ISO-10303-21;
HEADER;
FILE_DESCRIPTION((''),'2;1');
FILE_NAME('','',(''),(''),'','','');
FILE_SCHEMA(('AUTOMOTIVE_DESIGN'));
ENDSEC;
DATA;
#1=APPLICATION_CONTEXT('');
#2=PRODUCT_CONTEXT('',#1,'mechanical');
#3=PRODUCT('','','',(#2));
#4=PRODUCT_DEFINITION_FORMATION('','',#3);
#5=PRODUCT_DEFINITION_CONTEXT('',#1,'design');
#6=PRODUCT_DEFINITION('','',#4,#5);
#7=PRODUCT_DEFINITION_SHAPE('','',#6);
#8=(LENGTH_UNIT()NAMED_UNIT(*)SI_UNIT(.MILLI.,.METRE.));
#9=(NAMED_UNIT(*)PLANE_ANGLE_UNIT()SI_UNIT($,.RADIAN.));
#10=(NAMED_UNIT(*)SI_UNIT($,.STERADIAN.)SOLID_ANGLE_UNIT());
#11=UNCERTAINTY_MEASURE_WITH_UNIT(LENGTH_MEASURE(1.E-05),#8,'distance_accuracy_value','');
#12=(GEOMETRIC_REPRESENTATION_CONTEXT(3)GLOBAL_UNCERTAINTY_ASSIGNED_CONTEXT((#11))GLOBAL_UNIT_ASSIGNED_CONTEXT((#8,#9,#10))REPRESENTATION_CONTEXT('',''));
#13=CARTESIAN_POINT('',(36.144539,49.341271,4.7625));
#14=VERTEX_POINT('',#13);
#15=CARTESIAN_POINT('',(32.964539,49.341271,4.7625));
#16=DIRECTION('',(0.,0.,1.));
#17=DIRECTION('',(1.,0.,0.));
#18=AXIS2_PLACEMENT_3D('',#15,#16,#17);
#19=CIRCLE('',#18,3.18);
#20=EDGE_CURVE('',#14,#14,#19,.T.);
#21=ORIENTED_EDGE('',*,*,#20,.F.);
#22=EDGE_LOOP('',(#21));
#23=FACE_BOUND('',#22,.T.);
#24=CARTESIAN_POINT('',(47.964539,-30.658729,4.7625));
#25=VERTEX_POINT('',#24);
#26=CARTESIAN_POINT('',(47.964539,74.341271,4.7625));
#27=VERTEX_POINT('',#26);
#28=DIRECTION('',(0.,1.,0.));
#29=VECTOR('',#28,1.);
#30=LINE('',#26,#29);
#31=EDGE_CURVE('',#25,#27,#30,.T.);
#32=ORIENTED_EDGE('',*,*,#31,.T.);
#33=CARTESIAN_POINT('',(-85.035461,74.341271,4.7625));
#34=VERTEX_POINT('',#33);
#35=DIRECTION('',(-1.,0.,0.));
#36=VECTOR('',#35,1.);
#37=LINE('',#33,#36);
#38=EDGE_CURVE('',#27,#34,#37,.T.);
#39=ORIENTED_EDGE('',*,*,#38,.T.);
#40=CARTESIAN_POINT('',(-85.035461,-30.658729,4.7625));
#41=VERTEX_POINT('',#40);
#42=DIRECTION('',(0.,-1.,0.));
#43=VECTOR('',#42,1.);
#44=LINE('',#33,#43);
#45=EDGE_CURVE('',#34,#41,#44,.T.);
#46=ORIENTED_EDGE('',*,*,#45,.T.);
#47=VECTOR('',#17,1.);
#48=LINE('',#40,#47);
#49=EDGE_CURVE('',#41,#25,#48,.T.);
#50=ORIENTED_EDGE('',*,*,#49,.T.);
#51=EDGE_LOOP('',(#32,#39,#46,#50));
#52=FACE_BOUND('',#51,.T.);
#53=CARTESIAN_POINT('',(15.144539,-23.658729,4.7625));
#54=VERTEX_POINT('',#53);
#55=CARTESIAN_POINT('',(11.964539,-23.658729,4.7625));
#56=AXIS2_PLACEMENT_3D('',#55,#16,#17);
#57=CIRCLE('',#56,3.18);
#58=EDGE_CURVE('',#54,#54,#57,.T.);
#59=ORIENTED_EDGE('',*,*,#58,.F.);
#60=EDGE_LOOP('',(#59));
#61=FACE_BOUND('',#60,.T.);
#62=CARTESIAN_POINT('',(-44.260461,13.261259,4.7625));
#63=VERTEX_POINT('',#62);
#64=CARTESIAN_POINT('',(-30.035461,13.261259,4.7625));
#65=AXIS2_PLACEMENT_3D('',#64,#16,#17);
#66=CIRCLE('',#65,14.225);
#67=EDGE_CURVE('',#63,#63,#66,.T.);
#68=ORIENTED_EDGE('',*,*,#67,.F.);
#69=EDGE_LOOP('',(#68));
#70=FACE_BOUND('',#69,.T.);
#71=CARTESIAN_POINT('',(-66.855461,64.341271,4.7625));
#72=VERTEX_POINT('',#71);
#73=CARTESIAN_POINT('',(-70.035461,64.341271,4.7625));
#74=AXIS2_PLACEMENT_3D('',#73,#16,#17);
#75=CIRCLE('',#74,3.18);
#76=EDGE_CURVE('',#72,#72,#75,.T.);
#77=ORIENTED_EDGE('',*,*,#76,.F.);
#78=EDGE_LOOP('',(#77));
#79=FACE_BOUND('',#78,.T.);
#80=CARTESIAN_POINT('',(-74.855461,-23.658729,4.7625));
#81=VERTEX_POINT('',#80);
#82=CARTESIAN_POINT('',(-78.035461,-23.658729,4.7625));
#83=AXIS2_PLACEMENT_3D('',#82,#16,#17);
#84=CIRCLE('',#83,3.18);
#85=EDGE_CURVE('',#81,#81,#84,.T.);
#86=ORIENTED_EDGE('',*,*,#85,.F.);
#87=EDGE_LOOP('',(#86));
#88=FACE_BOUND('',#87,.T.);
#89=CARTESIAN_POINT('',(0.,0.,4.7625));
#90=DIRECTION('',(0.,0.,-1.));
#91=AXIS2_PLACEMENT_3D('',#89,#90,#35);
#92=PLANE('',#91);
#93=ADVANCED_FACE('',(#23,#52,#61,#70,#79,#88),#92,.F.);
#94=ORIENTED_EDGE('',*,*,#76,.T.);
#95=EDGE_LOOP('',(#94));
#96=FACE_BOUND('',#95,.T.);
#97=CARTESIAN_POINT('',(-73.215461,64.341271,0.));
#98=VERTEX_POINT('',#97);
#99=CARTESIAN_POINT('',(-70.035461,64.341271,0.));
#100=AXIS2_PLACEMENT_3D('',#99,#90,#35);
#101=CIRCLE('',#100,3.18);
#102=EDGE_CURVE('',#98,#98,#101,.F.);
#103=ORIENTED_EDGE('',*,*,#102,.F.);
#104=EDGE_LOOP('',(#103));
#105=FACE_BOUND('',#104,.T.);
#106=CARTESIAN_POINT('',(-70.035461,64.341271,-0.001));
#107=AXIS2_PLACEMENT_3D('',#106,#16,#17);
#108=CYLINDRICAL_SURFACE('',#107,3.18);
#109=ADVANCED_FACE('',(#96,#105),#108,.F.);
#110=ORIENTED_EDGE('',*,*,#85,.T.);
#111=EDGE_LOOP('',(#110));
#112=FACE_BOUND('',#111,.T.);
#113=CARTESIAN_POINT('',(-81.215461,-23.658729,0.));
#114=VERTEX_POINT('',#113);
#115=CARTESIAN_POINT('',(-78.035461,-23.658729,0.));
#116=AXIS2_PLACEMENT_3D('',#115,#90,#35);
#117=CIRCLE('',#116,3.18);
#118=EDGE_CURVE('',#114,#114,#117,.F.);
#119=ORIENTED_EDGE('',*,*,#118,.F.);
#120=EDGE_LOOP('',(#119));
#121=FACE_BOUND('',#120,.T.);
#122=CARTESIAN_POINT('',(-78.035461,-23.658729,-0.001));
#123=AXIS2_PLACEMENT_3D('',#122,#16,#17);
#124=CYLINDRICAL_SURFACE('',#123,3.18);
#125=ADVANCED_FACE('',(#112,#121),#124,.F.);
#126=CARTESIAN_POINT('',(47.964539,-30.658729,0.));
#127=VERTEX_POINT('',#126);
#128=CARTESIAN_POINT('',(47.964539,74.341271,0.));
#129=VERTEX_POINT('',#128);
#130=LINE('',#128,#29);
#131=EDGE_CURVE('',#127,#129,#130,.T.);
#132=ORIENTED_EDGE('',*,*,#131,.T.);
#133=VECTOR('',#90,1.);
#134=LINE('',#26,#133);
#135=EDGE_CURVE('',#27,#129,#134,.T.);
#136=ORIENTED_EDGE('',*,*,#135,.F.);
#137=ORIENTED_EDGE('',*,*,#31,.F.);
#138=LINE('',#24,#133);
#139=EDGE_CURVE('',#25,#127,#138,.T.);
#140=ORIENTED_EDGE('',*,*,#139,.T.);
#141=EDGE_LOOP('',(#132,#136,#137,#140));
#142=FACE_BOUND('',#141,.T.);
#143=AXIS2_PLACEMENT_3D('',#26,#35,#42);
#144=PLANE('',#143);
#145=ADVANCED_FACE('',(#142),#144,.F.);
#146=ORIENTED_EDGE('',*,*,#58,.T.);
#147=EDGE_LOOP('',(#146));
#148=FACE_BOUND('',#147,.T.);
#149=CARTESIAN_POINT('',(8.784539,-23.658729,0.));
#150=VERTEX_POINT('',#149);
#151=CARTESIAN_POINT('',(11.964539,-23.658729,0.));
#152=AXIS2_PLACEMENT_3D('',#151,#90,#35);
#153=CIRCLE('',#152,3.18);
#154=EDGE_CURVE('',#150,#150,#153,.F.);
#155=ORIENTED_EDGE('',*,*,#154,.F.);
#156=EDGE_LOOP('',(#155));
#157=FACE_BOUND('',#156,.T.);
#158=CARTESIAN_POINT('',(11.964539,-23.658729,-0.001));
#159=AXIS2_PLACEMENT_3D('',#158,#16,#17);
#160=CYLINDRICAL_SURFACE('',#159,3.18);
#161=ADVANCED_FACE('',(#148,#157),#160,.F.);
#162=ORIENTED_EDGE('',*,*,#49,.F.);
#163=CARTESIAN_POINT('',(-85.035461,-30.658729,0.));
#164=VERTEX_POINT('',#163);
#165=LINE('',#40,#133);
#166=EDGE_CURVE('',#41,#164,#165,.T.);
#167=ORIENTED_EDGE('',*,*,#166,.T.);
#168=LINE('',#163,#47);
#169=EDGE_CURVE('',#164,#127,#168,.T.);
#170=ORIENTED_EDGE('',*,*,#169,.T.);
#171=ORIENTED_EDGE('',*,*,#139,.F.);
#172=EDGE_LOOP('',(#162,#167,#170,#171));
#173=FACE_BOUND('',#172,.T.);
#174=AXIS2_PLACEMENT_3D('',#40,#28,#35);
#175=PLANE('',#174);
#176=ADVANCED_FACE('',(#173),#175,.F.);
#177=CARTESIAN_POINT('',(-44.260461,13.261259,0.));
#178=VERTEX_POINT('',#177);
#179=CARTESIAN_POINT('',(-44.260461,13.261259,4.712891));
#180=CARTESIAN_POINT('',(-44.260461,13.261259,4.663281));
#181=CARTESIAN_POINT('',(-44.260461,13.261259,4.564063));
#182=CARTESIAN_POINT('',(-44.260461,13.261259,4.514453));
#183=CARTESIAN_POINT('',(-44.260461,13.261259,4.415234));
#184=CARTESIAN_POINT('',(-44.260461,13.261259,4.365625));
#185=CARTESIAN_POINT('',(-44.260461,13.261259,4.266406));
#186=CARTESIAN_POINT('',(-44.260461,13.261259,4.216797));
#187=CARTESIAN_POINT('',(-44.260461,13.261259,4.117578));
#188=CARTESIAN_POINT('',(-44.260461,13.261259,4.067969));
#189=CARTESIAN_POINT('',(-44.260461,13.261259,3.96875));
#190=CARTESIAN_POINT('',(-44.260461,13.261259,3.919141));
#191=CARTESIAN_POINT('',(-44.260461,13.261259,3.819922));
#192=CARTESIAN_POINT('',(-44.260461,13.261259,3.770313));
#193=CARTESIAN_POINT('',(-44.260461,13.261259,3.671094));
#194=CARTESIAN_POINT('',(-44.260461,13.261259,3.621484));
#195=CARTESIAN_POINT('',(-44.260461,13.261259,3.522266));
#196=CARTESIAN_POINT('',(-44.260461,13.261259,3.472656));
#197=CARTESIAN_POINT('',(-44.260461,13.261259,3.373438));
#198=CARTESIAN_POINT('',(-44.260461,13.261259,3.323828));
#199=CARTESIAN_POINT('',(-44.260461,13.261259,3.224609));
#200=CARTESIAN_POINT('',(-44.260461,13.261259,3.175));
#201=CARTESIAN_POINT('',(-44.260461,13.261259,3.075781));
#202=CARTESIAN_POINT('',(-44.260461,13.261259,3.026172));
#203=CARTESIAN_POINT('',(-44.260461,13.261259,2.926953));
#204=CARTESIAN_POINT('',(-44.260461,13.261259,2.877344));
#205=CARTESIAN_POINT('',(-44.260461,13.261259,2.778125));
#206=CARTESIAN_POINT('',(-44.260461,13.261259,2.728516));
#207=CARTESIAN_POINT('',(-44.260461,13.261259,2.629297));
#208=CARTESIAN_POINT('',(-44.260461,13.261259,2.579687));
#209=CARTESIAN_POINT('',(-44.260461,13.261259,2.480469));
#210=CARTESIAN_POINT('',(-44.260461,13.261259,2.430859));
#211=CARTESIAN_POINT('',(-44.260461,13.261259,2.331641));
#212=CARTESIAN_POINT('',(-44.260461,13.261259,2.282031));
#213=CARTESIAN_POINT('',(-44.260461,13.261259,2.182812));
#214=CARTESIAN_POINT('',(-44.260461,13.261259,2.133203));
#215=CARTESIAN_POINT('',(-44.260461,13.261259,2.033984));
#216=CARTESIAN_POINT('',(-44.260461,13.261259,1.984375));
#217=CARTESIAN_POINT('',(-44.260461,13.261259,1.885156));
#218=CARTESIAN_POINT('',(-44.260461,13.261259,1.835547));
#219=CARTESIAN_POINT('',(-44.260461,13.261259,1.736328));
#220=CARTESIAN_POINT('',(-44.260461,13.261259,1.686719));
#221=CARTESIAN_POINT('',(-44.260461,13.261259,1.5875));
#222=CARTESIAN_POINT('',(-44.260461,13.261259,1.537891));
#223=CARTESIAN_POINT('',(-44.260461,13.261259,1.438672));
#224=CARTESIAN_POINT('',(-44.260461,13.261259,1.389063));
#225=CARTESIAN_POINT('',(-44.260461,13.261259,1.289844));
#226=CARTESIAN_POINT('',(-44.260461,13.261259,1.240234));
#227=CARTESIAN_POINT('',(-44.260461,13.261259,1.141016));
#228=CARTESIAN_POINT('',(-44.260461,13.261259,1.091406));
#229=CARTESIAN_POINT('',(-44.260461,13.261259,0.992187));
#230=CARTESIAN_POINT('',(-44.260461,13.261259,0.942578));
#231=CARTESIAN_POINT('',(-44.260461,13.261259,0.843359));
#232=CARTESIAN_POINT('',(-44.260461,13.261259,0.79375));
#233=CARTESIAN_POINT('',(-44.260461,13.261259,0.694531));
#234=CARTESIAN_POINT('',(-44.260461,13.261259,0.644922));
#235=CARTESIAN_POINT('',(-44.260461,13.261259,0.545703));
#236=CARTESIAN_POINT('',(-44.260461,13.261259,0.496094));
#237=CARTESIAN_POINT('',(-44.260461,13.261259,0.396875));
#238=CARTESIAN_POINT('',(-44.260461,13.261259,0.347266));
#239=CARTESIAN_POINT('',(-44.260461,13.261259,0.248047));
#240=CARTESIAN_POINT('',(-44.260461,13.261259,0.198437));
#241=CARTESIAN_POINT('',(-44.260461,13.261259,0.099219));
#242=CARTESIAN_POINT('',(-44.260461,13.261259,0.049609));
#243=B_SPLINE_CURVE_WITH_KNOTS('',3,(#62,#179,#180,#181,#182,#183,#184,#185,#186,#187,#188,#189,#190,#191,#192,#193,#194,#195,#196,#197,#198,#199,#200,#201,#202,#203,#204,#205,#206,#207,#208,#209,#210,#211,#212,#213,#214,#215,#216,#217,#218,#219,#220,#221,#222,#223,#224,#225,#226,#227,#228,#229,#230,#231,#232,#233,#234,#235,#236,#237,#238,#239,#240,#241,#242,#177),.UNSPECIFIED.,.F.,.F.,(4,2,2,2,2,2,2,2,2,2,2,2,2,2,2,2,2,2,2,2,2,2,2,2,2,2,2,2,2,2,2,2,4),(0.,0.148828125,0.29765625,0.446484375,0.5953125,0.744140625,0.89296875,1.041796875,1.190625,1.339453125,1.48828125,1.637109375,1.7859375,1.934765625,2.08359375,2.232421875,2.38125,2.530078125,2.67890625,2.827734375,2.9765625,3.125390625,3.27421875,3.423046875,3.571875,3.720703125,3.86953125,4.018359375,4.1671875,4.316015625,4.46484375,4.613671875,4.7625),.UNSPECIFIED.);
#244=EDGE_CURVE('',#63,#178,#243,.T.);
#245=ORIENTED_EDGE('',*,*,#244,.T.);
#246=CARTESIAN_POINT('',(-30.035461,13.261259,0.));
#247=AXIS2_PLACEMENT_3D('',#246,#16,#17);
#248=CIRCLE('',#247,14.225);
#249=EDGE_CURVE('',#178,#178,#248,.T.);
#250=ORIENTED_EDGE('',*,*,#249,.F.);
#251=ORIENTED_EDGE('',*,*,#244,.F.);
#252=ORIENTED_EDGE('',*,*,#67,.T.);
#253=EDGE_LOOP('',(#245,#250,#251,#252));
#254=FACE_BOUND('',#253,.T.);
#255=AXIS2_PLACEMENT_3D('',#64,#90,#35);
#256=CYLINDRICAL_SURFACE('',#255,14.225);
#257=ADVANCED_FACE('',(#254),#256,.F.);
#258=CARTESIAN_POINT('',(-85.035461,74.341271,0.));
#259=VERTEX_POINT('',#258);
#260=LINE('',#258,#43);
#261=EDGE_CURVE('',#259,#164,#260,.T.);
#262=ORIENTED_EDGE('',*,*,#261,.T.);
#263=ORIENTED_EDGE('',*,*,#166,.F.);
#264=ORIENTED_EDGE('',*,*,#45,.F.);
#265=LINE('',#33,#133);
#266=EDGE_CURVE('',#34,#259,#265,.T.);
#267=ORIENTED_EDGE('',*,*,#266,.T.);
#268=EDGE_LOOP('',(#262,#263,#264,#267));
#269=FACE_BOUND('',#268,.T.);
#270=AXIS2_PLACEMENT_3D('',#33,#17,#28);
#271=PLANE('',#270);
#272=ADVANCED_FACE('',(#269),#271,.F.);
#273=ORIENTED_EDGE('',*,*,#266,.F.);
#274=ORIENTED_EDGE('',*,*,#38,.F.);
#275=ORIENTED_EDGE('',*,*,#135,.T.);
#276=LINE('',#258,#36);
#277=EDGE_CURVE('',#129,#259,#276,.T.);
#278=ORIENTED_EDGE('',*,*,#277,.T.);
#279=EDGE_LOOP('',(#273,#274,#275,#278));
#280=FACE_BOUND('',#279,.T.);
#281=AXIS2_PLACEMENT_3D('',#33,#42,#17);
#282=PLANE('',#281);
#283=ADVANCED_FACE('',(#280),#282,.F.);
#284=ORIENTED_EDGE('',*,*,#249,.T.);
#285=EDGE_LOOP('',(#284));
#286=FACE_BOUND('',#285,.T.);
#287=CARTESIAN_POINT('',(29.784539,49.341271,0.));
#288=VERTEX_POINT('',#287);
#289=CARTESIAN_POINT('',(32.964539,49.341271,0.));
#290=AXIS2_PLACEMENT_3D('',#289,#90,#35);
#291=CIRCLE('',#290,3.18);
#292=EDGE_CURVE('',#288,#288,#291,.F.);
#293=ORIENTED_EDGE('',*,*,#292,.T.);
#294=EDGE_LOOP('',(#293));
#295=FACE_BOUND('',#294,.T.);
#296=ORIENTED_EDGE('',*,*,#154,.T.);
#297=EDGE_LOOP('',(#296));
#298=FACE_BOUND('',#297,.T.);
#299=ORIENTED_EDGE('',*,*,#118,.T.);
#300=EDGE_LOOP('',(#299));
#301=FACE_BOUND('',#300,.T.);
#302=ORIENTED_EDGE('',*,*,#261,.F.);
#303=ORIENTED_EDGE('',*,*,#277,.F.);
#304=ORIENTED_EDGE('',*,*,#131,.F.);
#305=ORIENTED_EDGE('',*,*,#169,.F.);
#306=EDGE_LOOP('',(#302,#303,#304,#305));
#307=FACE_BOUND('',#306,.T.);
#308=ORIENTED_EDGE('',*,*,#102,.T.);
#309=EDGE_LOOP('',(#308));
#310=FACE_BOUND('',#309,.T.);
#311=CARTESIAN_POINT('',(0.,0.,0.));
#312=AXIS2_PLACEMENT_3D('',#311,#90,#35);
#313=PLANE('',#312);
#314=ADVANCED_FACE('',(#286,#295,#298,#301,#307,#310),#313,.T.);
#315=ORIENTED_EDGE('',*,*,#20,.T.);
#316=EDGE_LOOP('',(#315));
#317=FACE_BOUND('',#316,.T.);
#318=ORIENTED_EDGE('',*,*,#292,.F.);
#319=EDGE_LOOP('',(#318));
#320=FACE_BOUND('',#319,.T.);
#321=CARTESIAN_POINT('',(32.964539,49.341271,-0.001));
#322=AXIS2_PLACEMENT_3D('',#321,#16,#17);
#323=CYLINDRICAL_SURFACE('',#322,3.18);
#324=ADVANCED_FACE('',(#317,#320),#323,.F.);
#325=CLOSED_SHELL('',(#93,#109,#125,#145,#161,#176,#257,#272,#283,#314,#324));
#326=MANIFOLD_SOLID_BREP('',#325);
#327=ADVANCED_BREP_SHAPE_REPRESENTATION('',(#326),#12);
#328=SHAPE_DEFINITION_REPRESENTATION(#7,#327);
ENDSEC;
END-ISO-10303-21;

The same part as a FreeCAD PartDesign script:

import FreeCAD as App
import Part
import Sketcher

V = App.Vector

doc = App.newDocument("Part")
body = doc.addObject("PartDesign::Body", "Body")

# Sketch on XY plane
sketch1 = body.newObject("Sketcher::SketchObject", "Sketch")
sketch1.AttachmentSupport = (doc.getObject("XY_Plane"), [""])
sketch1.MapMode = "FlatFace"
sketch1.addGeometry(Part.LineSegment(V(-85, 74, 0), V(-85, -31, 0)), False)
sketch1.addGeometry(Part.LineSegment(V(-85, -31, 0), V(48, -31, 0)), False)
sketch1.addGeometry(Part.LineSegment(V(48, -31, 0), V(48, 74, 0)), False)
sketch1.addGeometry(Part.LineSegment(V(48, 74, 0), V(-85, 74, 0)), False)
sketch1.addGeometry(Part.Circle(V(-30, 13, 0), V(0, 0, 1), 14), False)
sketch1.addConstraint(Sketcher.Constraint("Coincident", 0, 2, 1, 1))
sketch1.addConstraint(Sketcher.Constraint("Coincident", 1, 2, 2, 1))
sketch1.addConstraint(Sketcher.Constraint("Coincident", 2, 2, 3, 1))
sketch1.addConstraint(Sketcher.Constraint("Coincident", 3, 2, 0, 1))
sketch1.addConstraint(Sketcher.Constraint("Vertical", 0))
sketch1.addConstraint(Sketcher.Constraint("Horizontal", 1))
sketch1.addConstraint(Sketcher.Constraint("Vertical", 2))
sketch1.addConstraint(Sketcher.Constraint("Horizontal", 3))
sketch1.addConstraint(Sketcher.Constraint("Diameter", 4, 28.45))
sketch1.addConstraint(Sketcher.Constraint("DistanceX", 1, 1, 1, 2, 133.0))
sketch1.addConstraint(Sketcher.Constraint("DistanceY", 0, 2, 0, 1, 105.0))
sketch1.addConstraint(Sketcher.Constraint("DistanceX", 0, 2, 4, 3, 55.0))
sketch1.addConstraint(Sketcher.Constraint("DistanceX", 4, 3, -1, 1, 30.035461))
sketch1.addConstraint(Sketcher.Constraint("DistanceY", -1, 1, 4, 3, 13.261259))
sketch1.addConstraint(Sketcher.Constraint("DistanceY", 0, 2, -1, 1, 30.658729))
pad1 = body.newObject("PartDesign::Pad", "Pad")
pad1.Profile = sketch1
pad1.Length = 4.7625

# Sketch on XY plane
sketch2 = body.newObject("Sketcher::SketchObject", "Sketch001")
sketch2.AttachmentSupport = (doc.getObject("XY_Plane"), [""])
sketch2.MapMode = "FlatFace"
sketch2.AttachmentOffset = App.Placement(V(0, 0, 4.7625), App.Rotation())
sketch2.addGeometry(Part.Circle(V(-70, 64.3, 0), V(0, 0, 1), 3.2), False)
sketch2.addConstraint(Sketcher.Constraint("Diameter", 0, 6.36))
sketch2.addConstraint(Sketcher.Constraint("DistanceX", 0, 3, -1, 1, 70.035461))
sketch2.addConstraint(Sketcher.Constraint("DistanceY", -1, 1, 0, 3, 64.341271))
pocket1 = body.newObject("PartDesign::Pocket", "Pocket")
pocket1.Profile = sketch2
pocket1.Type = "UpToFirst"

# Sketch on XY plane
sketch3 = body.newObject("Sketcher::SketchObject", "Sketch002")
sketch3.AttachmentSupport = (doc.getObject("XY_Plane"), [""])
sketch3.MapMode = "FlatFace"
sketch3.AttachmentOffset = App.Placement(V(0, 0, 4.7625), App.Rotation())
sketch3.addGeometry(Part.Circle(V(33, 49.3, 0), V(0, 0, 1), 3.2), False)
sketch3.addConstraint(Sketcher.Constraint("Diameter", 0, 6.36))
sketch3.addConstraint(Sketcher.Constraint("DistanceX", -1, 1, 0, 3, 32.964539))
sketch3.addConstraint(Sketcher.Constraint("DistanceY", -1, 1, 0, 3, 49.341271))
pocket2 = body.newObject("PartDesign::Pocket", "Pocket001")
pocket2.Profile = sketch3
pocket2.Type = "UpToFirst"

# Sketch on XY plane
sketch4 = body.newObject("Sketcher::SketchObject", "Sketch003")
sketch4.AttachmentSupport = (doc.getObject("XY_Plane"), [""])
sketch4.MapMode = "FlatFace"
sketch4.AttachmentOffset = App.Placement(V(0, 0, 4.7625), App.Rotation())
sketch4.addGeometry(Part.Circle(V(12, -23.7, 0), V(0, 0, 1), 3.2), False)
sketch4.addConstraint(Sketcher.Constraint("Diameter", 0, 6.36))
sketch4.addConstraint(Sketcher.Constraint("DistanceX", -1, 1, 0, 3, 11.964539))
sketch4.addConstraint(Sketcher.Constraint("DistanceY", 0, 3, -1, 1, 23.658729))
pocket3 = body.newObject("PartDesign::Pocket", "Pocket002")
pocket3.Profile = sketch4
pocket3.Type = "UpToFirst"

# Sketch on XY plane
sketch5 = body.newObject("Sketcher::SketchObject", "Sketch004")
sketch5.AttachmentSupport = (doc.getObject("XY_Plane"), [""])
sketch5.MapMode = "FlatFace"
sketch5.AttachmentOffset = App.Placement(V(0, 0, 4.7625), App.Rotation())
sketch5.addGeometry(Part.Circle(V(-78, -23.7, 0), V(0, 0, 1), 3.2), False)
sketch5.addConstraint(Sketcher.Constraint("Diameter", 0, 6.36))
sketch5.addConstraint(Sketcher.Constraint("DistanceX", 0, 3, -1, 1, 78.035461))
sketch5.addConstraint(Sketcher.Constraint("DistanceY", 0, 3, -1, 1, 23.658729))
pocket4 = body.newObject("PartDesign::Pocket", "Pocket003")
pocket4.Profile = sketch5
pocket4.Type = "UpToFirst"

doc.recompute()
